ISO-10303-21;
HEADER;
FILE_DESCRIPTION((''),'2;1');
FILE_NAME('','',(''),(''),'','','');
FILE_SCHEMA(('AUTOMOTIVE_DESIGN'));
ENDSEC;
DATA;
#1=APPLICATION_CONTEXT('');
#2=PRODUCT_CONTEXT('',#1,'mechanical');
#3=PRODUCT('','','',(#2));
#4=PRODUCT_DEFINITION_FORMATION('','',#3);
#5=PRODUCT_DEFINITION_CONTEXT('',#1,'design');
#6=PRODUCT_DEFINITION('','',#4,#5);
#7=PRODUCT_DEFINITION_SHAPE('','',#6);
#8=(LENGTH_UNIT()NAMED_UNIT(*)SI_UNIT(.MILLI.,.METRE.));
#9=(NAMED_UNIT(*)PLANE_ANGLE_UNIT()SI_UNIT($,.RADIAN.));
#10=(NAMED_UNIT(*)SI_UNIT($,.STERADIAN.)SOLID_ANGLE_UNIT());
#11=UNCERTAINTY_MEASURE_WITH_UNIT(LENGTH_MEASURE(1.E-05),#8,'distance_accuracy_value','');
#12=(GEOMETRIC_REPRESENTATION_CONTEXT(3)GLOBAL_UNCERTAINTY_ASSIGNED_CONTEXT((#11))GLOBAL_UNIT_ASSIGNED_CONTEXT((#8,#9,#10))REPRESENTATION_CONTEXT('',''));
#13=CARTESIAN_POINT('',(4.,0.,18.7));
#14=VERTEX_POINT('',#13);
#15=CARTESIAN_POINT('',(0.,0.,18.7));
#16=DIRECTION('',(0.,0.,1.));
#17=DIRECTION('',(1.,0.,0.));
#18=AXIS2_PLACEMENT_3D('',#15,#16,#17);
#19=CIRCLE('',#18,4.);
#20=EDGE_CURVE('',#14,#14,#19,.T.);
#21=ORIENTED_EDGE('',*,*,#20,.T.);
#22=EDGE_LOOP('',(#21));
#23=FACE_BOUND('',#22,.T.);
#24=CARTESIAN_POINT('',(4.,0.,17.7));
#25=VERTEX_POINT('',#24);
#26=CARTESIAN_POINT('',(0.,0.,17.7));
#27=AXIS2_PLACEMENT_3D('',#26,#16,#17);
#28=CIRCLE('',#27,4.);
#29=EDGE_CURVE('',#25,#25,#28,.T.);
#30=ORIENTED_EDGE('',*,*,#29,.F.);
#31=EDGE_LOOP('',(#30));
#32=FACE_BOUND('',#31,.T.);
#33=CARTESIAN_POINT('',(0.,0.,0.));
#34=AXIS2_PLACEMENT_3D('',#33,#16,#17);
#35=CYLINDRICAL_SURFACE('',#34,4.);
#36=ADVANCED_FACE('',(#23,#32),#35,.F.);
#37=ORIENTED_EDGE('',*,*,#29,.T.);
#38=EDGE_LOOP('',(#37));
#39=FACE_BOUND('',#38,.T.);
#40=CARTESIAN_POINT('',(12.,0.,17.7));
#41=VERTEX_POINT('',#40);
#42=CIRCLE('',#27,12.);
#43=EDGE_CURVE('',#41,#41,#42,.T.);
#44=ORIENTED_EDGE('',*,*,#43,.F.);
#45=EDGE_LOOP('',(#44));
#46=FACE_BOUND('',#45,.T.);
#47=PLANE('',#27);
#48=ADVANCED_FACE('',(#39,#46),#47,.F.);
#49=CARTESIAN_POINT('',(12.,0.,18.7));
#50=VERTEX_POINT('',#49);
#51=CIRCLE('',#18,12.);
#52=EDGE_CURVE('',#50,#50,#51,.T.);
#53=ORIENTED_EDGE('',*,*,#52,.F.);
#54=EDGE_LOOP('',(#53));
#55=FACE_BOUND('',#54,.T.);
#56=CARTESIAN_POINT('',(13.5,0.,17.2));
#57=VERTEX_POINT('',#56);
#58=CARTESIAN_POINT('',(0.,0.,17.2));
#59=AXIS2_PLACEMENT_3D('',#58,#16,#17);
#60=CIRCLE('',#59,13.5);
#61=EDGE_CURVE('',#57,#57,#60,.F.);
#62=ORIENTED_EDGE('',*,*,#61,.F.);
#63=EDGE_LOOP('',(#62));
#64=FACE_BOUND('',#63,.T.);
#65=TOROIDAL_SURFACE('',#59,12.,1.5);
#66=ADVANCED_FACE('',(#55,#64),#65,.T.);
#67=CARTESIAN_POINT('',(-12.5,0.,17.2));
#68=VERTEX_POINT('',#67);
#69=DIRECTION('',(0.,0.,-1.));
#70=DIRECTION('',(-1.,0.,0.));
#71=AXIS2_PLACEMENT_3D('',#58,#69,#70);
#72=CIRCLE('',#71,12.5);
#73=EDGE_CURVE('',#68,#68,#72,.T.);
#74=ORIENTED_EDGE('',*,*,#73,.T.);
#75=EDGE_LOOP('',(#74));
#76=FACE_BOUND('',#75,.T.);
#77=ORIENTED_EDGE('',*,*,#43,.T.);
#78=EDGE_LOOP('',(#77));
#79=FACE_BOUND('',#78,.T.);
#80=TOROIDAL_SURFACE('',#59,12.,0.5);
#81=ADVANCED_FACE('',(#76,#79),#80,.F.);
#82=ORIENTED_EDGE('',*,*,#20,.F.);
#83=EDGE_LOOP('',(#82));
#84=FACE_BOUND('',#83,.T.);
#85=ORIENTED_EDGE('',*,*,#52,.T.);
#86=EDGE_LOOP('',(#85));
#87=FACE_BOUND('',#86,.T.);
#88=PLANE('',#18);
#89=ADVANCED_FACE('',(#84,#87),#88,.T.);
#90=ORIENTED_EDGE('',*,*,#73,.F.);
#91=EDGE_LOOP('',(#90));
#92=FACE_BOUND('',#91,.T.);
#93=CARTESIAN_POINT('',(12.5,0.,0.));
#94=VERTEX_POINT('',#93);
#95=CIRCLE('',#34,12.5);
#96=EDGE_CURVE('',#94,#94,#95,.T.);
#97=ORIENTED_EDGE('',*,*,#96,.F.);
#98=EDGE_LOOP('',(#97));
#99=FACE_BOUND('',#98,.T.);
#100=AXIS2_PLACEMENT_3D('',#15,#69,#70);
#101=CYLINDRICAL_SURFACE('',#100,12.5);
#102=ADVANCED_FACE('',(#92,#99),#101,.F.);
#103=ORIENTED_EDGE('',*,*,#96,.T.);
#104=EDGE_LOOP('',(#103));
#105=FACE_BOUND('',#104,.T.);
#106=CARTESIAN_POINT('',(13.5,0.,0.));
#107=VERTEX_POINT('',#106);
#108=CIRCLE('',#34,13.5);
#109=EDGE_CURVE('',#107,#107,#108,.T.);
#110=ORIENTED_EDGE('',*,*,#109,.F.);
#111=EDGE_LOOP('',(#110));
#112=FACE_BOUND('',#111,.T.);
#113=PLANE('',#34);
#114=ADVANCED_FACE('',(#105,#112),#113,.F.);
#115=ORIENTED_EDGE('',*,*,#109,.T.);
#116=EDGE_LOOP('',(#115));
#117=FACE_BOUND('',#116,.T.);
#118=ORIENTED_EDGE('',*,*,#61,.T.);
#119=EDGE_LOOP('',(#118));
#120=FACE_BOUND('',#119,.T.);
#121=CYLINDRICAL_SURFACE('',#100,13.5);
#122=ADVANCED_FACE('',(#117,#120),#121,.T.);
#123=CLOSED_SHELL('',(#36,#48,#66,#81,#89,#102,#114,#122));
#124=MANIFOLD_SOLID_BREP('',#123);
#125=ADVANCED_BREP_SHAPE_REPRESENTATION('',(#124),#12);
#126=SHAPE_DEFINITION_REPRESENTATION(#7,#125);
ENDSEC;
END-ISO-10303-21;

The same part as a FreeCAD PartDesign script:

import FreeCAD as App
import Part
import Sketcher


def edges_at(feature, points):
    """Names of the edges that pass closest to the given points."""
    edges = feature.Shape.Edges
    near = lambda p: min(range(len(edges)), key=lambda i: edges[i].distToShape(Part.Vertex(*p))[0])
    return sorted({f"Edge{near(p) + 1}" for p in points})


def faces_at(feature, points):
    """Names of the faces that lie closest to the given points."""
    faces = feature.Shape.Faces
    near = lambda p: min(range(len(faces)), key=lambda i: faces[i].distToShape(Part.Vertex(*p))[0])
    return sorted({f"Face{near(p) + 1}" for p in points})

doc = App.newDocument("Part")
body = doc.addObject("PartDesign::Body", "Body")

# Sketch on XY plane
sketch1 = body.newObject("Sketcher::SketchObject", "Sketch")
sketch1.AttachmentSupport = (doc.getObject("XY_Plane"), [""])
sketch1.MapMode = "FlatFace"
sketch1.addGeometry(Part.Circle(App.Vector(0, 0, 0), App.Vector(0, 0, 1), 13.5), False)
sketch1.addConstraint(Sketcher.Constraint("Coincident", 0, 3, -1, 1))
sketch1.addConstraint(Sketcher.Constraint("Diameter", 0, 27.0))
pad1 = body.newObject("PartDesign::Pad", "Pad")
pad1.Profile = sketch1
pad1.Length = 18.7
doc.recompute()

fillet = body.newObject("PartDesign::Fillet", "Fillet")
fillet.Base = (pad1, edges_at(pad1, [(-13.5, 0, 18.7)]))
fillet.Radius = 1.5
doc.recompute()

thickness = body.newObject("PartDesign::Thickness", "Thickness")
thickness.Base = (fillet, faces_at(fillet, [(0, 0, 0)]))
thickness.Value = 1
thickness.Reversed = True
thickness.Join = "Intersection"

# Sketch on XY plane
sketch2 = body.newObject("Sketcher::SketchObject", "Sketch001")
sketch2.AttachmentSupport = (doc.getObject("XY_Plane"), [""])
sketch2.MapMode = "FlatFace"
sketch2.AttachmentOffset = App.Placement(App.Vector(0, 0, 18.7), App.Rotation())
sketch2.addGeometry(Part.Circle(App.Vector(0, 0, 0), App.Vector(0, 0, 1), 4), False)
sketch2.addConstraint(Sketcher.Constraint("Coincident", 0, 3, -1, 1))
sketch2.addConstraint(Sketcher.Constraint("Diameter", 0, 8.0))
pocket1 = body.newObject("PartDesign::Pocket", "Pocket")
pocket1.Profile = sketch2
pocket1.Type = "ThroughAll"

doc.recompute()
